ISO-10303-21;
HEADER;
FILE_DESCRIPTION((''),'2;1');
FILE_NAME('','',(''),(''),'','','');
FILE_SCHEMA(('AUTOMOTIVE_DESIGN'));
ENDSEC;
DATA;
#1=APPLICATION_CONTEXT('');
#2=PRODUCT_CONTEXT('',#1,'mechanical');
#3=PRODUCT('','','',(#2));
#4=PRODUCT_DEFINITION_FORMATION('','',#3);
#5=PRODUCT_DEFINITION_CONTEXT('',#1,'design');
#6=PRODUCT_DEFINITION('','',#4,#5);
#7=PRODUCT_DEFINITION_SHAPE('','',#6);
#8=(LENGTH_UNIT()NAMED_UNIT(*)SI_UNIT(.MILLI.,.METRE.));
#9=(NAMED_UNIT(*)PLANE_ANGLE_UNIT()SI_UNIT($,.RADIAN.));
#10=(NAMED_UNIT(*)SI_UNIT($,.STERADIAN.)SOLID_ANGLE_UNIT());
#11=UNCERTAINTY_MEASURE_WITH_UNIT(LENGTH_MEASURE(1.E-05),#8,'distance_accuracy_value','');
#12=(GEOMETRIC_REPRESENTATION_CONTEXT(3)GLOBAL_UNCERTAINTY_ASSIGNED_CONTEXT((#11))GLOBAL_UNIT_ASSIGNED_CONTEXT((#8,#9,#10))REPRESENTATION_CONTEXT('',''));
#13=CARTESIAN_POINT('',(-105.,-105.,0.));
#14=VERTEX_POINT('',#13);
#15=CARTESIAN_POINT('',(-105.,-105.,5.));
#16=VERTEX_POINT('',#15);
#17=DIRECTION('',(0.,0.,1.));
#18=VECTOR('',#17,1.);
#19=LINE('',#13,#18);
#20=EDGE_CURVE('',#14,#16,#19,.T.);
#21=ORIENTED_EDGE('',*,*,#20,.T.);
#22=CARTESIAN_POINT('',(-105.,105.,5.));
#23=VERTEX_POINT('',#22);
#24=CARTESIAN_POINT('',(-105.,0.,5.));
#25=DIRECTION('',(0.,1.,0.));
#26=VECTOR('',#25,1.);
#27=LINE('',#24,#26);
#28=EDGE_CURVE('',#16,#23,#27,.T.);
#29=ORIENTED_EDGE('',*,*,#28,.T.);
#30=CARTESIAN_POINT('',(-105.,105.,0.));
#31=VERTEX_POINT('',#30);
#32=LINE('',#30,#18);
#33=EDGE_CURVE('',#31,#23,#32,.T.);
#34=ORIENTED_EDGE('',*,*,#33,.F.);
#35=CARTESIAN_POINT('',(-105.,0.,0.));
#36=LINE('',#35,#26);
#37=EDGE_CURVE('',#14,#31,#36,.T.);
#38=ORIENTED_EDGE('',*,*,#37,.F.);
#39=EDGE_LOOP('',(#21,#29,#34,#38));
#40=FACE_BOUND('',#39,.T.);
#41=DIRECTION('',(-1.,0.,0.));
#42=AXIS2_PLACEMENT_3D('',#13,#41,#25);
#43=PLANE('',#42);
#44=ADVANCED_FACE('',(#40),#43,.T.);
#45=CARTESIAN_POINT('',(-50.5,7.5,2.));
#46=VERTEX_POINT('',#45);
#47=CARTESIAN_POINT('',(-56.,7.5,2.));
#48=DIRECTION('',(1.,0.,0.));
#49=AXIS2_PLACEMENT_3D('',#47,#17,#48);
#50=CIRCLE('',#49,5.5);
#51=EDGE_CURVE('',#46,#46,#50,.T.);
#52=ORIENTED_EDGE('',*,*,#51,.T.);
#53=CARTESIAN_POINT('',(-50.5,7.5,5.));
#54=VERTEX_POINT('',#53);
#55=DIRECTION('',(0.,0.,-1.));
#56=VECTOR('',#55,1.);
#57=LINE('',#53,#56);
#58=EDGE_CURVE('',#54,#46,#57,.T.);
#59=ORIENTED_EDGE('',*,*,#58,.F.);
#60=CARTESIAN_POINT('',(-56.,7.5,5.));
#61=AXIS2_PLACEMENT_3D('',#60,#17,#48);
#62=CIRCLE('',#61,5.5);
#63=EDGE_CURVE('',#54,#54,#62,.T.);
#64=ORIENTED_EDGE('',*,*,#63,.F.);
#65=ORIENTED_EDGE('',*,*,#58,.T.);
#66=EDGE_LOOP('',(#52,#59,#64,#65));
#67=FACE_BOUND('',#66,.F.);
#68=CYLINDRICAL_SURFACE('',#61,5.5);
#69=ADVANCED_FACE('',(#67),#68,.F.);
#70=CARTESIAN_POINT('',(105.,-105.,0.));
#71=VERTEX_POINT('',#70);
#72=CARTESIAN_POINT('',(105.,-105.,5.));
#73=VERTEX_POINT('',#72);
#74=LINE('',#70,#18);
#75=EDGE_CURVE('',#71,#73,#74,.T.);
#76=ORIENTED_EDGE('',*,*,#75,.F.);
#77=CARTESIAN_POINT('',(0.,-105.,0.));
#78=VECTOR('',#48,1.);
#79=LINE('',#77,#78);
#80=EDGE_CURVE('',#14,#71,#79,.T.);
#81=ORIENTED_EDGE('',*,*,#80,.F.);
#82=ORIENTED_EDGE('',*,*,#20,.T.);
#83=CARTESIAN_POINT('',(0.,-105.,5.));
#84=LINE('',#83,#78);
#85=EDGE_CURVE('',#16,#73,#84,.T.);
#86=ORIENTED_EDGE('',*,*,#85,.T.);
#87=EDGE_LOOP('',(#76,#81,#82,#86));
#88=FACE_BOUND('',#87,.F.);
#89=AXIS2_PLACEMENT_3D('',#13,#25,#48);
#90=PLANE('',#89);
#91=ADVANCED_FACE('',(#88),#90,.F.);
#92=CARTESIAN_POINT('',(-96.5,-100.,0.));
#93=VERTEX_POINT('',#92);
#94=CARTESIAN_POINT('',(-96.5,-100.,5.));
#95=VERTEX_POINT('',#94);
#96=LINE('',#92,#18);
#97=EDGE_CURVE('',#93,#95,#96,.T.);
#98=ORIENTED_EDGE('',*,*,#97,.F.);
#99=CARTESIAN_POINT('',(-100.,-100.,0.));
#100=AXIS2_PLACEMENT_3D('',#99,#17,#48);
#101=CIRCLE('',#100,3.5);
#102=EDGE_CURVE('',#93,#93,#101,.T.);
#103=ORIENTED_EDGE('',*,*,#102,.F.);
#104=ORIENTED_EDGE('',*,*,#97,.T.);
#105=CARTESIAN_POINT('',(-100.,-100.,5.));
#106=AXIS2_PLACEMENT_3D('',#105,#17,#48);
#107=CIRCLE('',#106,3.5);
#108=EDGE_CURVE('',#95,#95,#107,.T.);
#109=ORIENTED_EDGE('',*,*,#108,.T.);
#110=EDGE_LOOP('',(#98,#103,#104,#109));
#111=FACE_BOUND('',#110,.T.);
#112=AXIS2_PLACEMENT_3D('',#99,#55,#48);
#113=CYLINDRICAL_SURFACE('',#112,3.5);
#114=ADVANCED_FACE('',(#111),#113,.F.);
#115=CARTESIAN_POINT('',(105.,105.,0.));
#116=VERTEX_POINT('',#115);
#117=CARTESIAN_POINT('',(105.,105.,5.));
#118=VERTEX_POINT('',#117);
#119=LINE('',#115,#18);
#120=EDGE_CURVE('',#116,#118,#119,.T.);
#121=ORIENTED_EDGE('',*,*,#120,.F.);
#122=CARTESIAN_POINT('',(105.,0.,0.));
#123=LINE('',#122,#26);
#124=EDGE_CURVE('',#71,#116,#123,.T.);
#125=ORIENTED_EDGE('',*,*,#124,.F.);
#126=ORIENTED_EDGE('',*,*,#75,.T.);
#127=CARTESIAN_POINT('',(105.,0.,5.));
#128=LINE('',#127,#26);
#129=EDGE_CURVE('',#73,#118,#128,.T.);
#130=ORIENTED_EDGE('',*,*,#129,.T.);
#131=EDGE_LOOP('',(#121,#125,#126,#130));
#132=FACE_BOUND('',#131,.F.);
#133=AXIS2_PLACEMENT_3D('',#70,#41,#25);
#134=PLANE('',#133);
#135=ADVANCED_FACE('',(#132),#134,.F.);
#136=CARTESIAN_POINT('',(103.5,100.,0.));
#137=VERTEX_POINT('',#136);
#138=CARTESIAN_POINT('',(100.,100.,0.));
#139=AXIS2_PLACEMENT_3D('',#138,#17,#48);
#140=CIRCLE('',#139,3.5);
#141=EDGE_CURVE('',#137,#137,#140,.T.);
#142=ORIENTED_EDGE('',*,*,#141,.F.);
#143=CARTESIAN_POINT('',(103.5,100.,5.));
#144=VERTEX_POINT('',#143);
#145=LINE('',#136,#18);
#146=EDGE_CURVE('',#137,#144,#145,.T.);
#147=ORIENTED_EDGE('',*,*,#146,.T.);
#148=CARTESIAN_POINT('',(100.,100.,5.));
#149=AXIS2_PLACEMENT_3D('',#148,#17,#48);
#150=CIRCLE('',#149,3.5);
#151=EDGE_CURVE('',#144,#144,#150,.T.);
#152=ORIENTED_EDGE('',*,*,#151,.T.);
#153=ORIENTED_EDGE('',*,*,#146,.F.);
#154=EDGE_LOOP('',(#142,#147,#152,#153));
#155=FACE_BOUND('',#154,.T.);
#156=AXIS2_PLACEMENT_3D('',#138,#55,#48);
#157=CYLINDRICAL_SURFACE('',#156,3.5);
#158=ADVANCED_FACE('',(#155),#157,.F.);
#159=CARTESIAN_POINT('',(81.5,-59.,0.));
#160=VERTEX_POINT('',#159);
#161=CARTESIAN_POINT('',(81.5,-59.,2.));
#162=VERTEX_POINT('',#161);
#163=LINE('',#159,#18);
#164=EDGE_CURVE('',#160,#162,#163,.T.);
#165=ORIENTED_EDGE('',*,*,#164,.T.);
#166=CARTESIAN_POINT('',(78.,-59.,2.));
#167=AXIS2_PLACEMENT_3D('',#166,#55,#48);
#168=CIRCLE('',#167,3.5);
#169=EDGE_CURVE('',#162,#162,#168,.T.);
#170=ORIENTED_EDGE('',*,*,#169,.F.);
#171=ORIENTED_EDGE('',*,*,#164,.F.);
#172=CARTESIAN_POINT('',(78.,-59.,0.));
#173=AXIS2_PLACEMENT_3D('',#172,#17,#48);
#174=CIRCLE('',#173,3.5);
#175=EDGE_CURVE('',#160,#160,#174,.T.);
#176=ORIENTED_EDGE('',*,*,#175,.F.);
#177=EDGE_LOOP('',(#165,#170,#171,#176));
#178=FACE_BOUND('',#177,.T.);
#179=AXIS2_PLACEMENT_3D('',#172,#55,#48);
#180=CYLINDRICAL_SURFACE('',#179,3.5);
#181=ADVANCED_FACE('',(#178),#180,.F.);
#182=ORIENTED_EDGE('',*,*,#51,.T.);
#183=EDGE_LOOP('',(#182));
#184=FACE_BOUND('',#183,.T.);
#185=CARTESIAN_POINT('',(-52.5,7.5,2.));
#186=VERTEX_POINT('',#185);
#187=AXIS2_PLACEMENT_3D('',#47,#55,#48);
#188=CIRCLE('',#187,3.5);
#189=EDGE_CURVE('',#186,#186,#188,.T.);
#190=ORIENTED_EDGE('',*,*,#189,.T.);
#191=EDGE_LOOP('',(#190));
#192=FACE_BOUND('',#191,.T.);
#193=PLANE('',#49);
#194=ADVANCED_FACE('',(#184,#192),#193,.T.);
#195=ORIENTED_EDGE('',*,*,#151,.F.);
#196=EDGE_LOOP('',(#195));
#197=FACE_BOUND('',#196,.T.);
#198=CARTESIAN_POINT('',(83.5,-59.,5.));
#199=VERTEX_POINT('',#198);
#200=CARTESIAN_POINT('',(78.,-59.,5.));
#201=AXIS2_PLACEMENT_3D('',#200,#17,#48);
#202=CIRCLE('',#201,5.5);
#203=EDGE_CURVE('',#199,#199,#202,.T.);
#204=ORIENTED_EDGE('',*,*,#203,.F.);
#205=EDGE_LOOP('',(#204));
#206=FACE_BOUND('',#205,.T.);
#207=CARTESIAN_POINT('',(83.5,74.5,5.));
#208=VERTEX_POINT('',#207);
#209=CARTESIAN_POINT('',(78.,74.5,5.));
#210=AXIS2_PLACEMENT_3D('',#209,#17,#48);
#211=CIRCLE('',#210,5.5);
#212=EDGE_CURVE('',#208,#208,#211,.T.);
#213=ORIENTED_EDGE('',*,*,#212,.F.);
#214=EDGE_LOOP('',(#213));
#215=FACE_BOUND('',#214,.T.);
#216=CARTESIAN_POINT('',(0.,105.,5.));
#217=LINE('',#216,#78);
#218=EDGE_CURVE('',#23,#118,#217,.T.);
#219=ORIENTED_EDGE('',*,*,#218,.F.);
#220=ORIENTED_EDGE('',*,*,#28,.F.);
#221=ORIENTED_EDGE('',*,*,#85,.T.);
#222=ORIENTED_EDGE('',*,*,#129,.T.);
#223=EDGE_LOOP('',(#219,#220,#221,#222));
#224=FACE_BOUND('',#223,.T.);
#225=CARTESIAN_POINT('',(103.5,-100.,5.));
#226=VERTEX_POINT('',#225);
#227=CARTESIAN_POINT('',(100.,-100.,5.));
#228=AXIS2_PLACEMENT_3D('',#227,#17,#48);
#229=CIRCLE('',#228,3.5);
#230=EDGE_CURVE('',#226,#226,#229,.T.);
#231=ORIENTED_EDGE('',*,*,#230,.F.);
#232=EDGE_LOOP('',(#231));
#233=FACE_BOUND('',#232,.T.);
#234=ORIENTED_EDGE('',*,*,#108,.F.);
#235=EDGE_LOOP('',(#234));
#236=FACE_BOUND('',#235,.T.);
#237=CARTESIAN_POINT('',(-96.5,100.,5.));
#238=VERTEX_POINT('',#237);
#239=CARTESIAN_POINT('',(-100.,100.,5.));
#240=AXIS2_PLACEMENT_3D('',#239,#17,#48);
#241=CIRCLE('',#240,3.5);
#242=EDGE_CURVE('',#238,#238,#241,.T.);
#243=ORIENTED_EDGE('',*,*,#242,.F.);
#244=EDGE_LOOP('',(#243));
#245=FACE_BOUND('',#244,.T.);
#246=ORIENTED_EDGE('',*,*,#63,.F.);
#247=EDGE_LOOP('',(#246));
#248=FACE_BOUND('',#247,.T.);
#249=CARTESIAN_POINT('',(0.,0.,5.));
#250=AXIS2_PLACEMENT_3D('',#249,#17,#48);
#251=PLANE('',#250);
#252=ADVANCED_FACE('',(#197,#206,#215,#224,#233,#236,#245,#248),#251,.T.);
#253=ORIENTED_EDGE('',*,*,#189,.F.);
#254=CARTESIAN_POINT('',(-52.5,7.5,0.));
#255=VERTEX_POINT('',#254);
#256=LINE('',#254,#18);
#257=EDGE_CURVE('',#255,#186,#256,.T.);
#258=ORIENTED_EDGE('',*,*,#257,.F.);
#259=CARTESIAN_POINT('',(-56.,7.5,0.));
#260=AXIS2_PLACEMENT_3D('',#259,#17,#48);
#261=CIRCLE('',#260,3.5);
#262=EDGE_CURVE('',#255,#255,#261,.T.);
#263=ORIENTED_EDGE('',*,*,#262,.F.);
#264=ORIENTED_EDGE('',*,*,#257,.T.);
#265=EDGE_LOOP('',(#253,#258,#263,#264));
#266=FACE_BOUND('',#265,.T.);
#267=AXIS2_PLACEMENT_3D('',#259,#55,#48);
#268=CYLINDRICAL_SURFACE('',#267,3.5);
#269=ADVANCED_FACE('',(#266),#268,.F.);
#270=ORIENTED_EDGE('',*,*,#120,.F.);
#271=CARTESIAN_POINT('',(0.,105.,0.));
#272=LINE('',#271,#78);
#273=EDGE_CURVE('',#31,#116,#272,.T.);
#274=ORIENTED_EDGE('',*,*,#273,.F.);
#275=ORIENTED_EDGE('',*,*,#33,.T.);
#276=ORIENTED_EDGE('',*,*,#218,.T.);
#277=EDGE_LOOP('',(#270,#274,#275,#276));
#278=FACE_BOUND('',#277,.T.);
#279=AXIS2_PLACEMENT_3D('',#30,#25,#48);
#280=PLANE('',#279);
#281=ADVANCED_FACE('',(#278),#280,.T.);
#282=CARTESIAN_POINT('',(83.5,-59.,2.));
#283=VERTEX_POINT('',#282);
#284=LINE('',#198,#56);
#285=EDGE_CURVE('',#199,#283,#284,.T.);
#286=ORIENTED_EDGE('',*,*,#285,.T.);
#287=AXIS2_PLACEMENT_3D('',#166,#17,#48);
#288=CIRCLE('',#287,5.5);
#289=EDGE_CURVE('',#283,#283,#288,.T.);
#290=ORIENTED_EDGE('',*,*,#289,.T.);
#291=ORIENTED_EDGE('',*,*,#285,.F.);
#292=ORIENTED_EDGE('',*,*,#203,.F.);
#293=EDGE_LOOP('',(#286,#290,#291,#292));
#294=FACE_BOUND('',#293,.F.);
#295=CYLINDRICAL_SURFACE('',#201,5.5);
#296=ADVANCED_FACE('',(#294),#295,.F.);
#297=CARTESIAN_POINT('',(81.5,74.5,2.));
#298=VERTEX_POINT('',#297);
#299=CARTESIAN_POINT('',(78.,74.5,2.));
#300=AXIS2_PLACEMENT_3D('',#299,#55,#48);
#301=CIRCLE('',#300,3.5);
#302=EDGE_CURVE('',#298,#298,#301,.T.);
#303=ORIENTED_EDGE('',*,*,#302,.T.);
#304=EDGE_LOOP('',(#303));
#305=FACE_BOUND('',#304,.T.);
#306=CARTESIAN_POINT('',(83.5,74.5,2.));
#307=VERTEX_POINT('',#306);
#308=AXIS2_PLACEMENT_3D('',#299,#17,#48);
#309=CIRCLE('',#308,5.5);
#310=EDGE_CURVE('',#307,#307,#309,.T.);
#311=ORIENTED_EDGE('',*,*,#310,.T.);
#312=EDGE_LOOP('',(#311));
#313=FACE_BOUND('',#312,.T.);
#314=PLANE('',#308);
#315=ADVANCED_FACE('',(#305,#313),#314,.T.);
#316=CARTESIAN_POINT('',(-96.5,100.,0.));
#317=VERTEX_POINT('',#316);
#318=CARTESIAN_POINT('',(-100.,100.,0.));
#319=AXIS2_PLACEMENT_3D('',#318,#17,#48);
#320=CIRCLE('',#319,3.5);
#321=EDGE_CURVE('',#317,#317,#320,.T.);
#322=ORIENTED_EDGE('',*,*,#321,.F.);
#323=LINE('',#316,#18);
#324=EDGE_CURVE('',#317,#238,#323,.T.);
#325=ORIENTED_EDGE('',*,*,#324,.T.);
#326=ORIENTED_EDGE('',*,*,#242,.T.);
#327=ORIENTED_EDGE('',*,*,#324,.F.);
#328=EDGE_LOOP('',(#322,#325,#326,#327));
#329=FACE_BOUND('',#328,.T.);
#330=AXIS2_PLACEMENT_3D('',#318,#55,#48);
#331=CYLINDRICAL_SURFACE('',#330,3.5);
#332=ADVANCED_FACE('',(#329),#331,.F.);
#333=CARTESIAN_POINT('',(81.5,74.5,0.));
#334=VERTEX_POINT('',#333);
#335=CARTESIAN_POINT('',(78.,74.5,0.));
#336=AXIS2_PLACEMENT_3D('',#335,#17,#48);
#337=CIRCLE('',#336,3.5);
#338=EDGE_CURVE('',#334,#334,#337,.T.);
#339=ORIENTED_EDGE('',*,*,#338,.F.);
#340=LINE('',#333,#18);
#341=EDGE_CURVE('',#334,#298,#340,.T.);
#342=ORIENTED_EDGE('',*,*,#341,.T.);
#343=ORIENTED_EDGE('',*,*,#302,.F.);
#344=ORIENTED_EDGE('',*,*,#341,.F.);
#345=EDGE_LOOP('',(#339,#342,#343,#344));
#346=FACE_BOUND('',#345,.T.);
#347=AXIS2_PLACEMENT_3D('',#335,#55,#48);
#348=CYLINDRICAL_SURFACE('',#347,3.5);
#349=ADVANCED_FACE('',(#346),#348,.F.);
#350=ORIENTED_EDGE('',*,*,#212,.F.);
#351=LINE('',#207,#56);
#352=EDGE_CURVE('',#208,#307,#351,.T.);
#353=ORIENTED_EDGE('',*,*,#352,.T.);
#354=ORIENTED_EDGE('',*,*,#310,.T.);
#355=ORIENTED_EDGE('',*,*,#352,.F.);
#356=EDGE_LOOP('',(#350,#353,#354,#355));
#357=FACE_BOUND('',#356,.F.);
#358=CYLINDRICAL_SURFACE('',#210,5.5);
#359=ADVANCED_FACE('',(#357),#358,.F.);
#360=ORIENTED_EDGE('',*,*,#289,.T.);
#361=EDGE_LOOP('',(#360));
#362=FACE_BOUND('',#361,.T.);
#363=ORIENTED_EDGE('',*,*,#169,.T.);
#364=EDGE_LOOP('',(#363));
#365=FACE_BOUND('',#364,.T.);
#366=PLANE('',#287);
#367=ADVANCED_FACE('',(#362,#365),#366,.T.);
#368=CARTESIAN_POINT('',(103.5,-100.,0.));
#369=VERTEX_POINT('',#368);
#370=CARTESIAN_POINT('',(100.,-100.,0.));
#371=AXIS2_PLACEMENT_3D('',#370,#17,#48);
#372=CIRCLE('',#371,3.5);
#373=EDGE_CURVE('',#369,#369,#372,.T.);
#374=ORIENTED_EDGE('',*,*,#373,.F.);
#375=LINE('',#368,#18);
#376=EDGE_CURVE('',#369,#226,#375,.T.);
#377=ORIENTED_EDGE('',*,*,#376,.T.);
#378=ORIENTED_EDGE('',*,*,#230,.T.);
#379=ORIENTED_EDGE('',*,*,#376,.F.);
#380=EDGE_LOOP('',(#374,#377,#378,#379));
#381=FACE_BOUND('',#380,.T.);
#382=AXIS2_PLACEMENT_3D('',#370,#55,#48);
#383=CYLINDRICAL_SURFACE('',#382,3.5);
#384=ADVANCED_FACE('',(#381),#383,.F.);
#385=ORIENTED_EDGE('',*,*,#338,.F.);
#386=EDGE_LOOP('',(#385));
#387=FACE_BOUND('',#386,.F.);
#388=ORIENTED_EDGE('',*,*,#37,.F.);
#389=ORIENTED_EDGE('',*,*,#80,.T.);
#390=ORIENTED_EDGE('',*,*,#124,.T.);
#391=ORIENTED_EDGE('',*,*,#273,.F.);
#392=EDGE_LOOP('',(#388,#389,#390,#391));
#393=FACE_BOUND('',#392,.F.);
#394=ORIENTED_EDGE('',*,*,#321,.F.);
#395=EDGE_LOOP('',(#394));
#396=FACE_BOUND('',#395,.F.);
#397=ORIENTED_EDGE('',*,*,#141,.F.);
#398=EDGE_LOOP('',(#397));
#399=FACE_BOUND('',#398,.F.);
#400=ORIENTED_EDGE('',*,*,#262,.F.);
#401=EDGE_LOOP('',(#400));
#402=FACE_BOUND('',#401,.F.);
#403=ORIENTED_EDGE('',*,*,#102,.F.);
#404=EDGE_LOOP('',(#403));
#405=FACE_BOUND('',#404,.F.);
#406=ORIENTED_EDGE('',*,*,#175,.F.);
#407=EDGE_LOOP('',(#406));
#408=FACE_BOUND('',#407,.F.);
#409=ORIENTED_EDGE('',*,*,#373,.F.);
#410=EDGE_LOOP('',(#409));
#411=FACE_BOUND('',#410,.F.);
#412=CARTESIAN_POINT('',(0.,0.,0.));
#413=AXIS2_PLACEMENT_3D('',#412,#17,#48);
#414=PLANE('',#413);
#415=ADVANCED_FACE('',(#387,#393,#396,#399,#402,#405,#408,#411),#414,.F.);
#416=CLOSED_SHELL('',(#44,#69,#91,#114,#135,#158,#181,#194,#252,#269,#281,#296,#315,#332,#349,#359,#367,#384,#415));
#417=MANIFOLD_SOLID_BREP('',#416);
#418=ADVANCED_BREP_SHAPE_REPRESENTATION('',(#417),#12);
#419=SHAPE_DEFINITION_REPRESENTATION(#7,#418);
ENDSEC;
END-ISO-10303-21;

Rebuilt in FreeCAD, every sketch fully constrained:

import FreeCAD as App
import Part
import Sketcher
Q = App.Units.Quantity


def add_polygon(sketch, points):
    """Adds a closed chain of lines whose ends are joined by coincident constraints."""
    first, n = sketch.GeometryCount, len(points)
    for a, b in zip(points, points[1:] + points[:1]):
        sketch.addGeometry(Part.LineSegment(App.Vector(*a, 0), App.Vector(*b, 0)), False)
    for i in range(n):
        sketch.addConstraint(Sketcher.Constraint("Coincident", first + i, 2, first + (i + 1) % n, 1))

doc = App.newDocument("Part")
body = doc.addObject("PartDesign::Body", "Body")

# Sketch on XY plane
sketch1 = body.newObject("Sketcher::SketchObject", "Sketch")
sketch1.AttachmentSupport = (doc.getObject("XY_Plane"), [""])
sketch1.MapMode = "FlatFace"
add_polygon(sketch1, [(-105, 105), (-105, -105), (105, -105), (105, 105)])  # lines 0-3
sketch1.addGeometry(Part.Circle(App.Vector(-100, -100, 0), App.Vector(0, 0, 1), 3.5), False)  # 4
sketch1.addGeometry(Part.Circle(App.Vector(100, -100, 0), App.Vector(0, 0, 1), 3.5), False)  # 5
sketch1.addGeometry(Part.Circle(App.Vector(78, -59, 0), App.Vector(0, 0, 1), 3.5), False)  # 6
sketch1.addGeometry(Part.Circle(App.Vector(-56, 7.5, 0), App.Vector(0, 0, 1), 3.5), False)  # 7
sketch1.addGeometry(Part.Circle(App.Vector(-100, 100, 0), App.Vector(0, 0, 1), 3.5), False)  # 8
sketch1.addGeometry(Part.Circle(App.Vector(78, 74.5, 0), App.Vector(0, 0, 1), 3.5), False)  # 9
sketch1.addGeometry(Part.Circle(App.Vector(100, 100, 0), App.Vector(0, 0, 1), 3.5), False)  # 10
sketch1.addConstraint(Sketcher.Constraint("Vertical", 0))
sketch1.addConstraint(Sketcher.Constraint("Horizontal", 1))
sketch1.addConstraint(Sketcher.Constraint("Vertical", 2))
sketch1.addConstraint(Sketcher.Constraint("Horizontal", 3))
sketch1.addConstraint(Sketcher.Constraint("Equal", 4, 5))
sketch1.addConstraint(Sketcher.Constraint("Equal", 5, 6))
sketch1.addConstraint(Sketcher.Constraint("Equal", 6, 7))
sketch1.addConstraint(Sketcher.Constraint("Equal", 7, 8))
sketch1.addConstraint(Sketcher.Constraint("Equal", 8, 9))
sketch1.addConstraint(Sketcher.Constraint("Equal", 9, 10))
sketch1.addConstraint(Sketcher.Constraint("Symmetric", 5, 3, 8, 3, -1, 1))
sketch1.addConstraint(Sketcher.Constraint("Symmetric", 4, 3, 10, 3, -1, 1))
sketch1.addConstraint(Sketcher.Constraint("Symmetric", 0, 2, 2, 2, -1, 1))
sketch1.addConstraint(Sketcher.Constraint("Symmetric", 4, 3, 5, 3, -2))
sketch1.addConstraint(Sketcher.Constraint("Vertical", 6, 3, 9, 3))
sketch1.addConstraint(Sketcher.Constraint("Equal", 3, 0))
sketch1.addConstraint(Sketcher.Constraint("Diameter", 4, Q("7 mm")))
sketch1.addConstraint(Sketcher.Constraint("DistanceX", 1, 1, 1, 2, Q("210 mm")))
sketch1.addConstraint(Sketcher.Constraint("DistanceX", 4, 3, -1, 1, Q("100 mm")))
sketch1.addConstraint(Sketcher.Constraint("DistanceY", 4, 3, -1, 1, Q("100 mm")))
sketch1.addConstraint(Sketcher.Constraint("DistanceX", -1, 1, 6, 3, Q("78 mm")))
sketch1.addConstraint(Sketcher.Constraint("DistanceY", 6, 3, -1, 1, Q("59 mm")))
sketch1.addConstraint(Sketcher.Constraint("DistanceX", 7, 3, -1, 1, Q("56 mm")))
sketch1.addConstraint(Sketcher.Constraint("DistanceY", 7, 3, 9, 3, Q("67 mm")))
sketch1.addConstraint(Sketcher.Constraint("DistanceY", -1, 1, 7, 3, Q("7.5 mm")))
pad1 = body.newObject("PartDesign::Pad", "Pad")
pad1.Profile = sketch1
pad1.Length = 5

# Sketch on XY plane
sketch2 = body.newObject("Sketcher::SketchObject", "Sketch001")
sketch2.AttachmentSupport = (doc.getObject("XY_Plane"), [""])
sketch2.MapMode = "FlatFace"
sketch2.AttachmentOffset = App.Placement(App.Vector(0, 0, 5), App.Rotation())
sketch2.addGeometry(Part.Circle(App.Vector(-56, 7.5, 0), App.Vector(0, 0, 1), 5.5), False)
sketch2.addGeometry(Part.Circle(App.Vector(78, 74.5, 0), App.Vector(0, 0, 1), 5.5), False)
sketch2.addGeometry(Part.Circle(App.Vector(78, -59, 0), App.Vector(0, 0, 1), 5.5), False)
sketch2.addConstraint(Sketcher.Constraint("Equal", 0, 1))
sketch2.addConstraint(Sketcher.Constraint("Equal", 1, 2))
sketch2.addConstraint(Sketcher.Constraint("Vertical", 1, 3, 2, 3))
sketch2.addConstraint(Sketcher.Constraint("Diameter", 0, Q("11 mm")))
sketch2.addConstraint(Sketcher.Constraint("DistanceX", 0, 3, -1, 1, Q("56 mm")))
sketch2.addConstraint(Sketcher.Constraint("DistanceX", -1, 1, 1, 3, Q("78 mm")))
sketch2.addConstraint(Sketcher.Constraint("DistanceY", 2, 3, -1, 1, Q("59 mm")))
sketch2.addConstraint(Sketcher.Constraint("DistanceY", 0, 3, 1, 3, Q("67 mm")))
sketch2.addConstraint(Sketcher.Constraint("DistanceY", -1, 1, 0, 3, Q("7.5 mm")))
pocket1 = body.newObject("PartDesign::Pocket", "Pocket")
pocket1.Profile = sketch2
pocket1.Length = 3

doc.recompute()
